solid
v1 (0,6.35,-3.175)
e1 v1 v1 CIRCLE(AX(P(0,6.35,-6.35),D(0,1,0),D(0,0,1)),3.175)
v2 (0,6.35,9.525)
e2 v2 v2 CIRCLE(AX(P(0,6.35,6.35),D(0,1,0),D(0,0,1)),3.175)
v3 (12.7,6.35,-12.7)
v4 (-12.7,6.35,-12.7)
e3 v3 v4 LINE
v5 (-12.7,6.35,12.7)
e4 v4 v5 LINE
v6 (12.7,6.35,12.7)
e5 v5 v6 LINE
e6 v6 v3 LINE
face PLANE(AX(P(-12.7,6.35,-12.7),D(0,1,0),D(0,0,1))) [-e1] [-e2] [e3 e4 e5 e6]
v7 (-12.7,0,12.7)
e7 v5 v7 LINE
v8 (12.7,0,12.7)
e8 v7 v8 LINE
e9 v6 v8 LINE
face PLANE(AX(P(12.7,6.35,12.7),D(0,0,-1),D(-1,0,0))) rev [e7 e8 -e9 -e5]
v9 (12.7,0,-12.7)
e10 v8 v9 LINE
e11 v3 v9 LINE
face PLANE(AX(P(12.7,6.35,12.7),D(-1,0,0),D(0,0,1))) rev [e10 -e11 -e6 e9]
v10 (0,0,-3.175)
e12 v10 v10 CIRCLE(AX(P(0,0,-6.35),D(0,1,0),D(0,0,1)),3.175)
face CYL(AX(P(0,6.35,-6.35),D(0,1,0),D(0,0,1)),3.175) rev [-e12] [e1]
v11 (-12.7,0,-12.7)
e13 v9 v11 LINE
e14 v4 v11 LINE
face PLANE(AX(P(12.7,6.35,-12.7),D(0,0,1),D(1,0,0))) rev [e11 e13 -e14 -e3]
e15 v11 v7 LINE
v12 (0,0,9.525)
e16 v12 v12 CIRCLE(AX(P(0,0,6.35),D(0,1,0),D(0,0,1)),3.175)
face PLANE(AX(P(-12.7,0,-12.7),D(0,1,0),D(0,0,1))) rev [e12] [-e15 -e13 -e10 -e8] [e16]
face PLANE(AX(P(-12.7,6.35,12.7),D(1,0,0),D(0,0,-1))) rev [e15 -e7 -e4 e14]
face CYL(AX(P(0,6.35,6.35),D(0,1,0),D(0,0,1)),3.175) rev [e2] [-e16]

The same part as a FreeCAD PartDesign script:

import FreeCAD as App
import Part
import Sketcher

V = App.Vector
Q = App.Units.Quantity

doc = App.newDocument("Part")
params = doc.addObject("Spreadsheet::Sheet", "Params")
for row, (alias, value) in enumerate([
    ("sketch1_width", "1 in"),
    ("pad1_length", "0.25 in"),
    ("sketch2_diameter", "0.25 in"),
    ("hole_diameter", "0.25 in"),
], start=1):
    params.set(f"A{row}", alias)
    params.set(f"B{row}", "=" + value)
    params.setAlias(f"B{row}", alias)

body = doc.addObject("PartDesign::Body", "Body")

sketch1 = doc.addObject("Sketcher::SketchObject", "Sketch")
body.addObject(sketch1)
sketch1.AttachmentSupport = (doc.XZ_Plane, [""])
sketch1.MapMode = "FlatFace"
sketch1.addGeometry([
    Part.LineSegment(V(-13, -13, 0), V(-13, 13, 0)),
    Part.LineSegment(V(-13, 13, 0), V(13, 13, 0)),
    Part.LineSegment(V(13, 13, 0), V(13, -13, 0)),
    Part.LineSegment(V(13, -13, 0), V(-13, -13, 0)),
], False)
sketch1.addConstraint([
    Sketcher.Constraint("Coincident", 0, 2, 1, 1),
    Sketcher.Constraint("Coincident", 1, 2, 2, 1),
    Sketcher.Constraint("Coincident", 2, 2, 3, 1),
    Sketcher.Constraint("Coincident", 3, 2, 0, 1),
    Sketcher.Constraint("Vertical", 0),
    Sketcher.Constraint("Horizontal", 1),
    Sketcher.Constraint("Vertical", 2),
    Sketcher.Constraint("Horizontal", 3),
    Sketcher.Constraint("Symmetric", 0, 2, 2, 2, -1, 1),
    Sketcher.Constraint("Equal", 3, 0),
    Sketcher.Constraint("DistanceX", 1, 1, 1, 2, Q("1 in")),
])
sketch1.setExpression("Constraints[10]", "Params.sketch1_width")
pad1 = doc.addObject("PartDesign::Pad", "Pad")
body.addObject(pad1)
pad1.Profile = sketch1
pad1.setExpression("Length", "Params.pad1_length")
pad1.Reversed = True

sketch2 = doc.addObject("Sketcher::SketchObject", "Sketch001")
body.addObject(sketch2)
sketch2.AttachmentSupport = (doc.XZ_Plane, [""])
sketch2.MapMode = "FlatFace"
sketch2.AttachmentOffset = App.Placement(V(0, 0, -0.25 * 25.4), App.Rotation())
sketch2.addGeometry([
    Part.Circle(V(0, 6.3, 0), V(0, 0, 1), 3.2),
    Part.Circle(V(0, -6.3, 0), V(0, 0, 1), 3.2),
], False)
sketch2.addConstraint([
    Sketcher.Constraint("Equal", 0, 1),
    Sketcher.Constraint("Symmetric", 0, 3, 1, 3, -1, 1),
    Sketcher.Constraint("PointOnObject", 0, 3, -2),
    Sketcher.Constraint("Diameter", 0, Q("0.25 in")),
    Sketcher.Constraint("DistanceY", 1, 3, 0, 3, Q("0.5 in")),
])
sketch2.setExpression("Constraints[3]", "Params.sketch2_diameter")
doc.recompute()
hole = doc.addObject("PartDesign::Hole", "Hole")
body.addObject(hole)
hole.Profile = sketch2
hole.ThreadType = "None"
hole.setExpression("Diameter", "Params.hole_diameter")
hole.DepthType = "ThroughAll"
hole.Reversed = True

doc.recompute()
